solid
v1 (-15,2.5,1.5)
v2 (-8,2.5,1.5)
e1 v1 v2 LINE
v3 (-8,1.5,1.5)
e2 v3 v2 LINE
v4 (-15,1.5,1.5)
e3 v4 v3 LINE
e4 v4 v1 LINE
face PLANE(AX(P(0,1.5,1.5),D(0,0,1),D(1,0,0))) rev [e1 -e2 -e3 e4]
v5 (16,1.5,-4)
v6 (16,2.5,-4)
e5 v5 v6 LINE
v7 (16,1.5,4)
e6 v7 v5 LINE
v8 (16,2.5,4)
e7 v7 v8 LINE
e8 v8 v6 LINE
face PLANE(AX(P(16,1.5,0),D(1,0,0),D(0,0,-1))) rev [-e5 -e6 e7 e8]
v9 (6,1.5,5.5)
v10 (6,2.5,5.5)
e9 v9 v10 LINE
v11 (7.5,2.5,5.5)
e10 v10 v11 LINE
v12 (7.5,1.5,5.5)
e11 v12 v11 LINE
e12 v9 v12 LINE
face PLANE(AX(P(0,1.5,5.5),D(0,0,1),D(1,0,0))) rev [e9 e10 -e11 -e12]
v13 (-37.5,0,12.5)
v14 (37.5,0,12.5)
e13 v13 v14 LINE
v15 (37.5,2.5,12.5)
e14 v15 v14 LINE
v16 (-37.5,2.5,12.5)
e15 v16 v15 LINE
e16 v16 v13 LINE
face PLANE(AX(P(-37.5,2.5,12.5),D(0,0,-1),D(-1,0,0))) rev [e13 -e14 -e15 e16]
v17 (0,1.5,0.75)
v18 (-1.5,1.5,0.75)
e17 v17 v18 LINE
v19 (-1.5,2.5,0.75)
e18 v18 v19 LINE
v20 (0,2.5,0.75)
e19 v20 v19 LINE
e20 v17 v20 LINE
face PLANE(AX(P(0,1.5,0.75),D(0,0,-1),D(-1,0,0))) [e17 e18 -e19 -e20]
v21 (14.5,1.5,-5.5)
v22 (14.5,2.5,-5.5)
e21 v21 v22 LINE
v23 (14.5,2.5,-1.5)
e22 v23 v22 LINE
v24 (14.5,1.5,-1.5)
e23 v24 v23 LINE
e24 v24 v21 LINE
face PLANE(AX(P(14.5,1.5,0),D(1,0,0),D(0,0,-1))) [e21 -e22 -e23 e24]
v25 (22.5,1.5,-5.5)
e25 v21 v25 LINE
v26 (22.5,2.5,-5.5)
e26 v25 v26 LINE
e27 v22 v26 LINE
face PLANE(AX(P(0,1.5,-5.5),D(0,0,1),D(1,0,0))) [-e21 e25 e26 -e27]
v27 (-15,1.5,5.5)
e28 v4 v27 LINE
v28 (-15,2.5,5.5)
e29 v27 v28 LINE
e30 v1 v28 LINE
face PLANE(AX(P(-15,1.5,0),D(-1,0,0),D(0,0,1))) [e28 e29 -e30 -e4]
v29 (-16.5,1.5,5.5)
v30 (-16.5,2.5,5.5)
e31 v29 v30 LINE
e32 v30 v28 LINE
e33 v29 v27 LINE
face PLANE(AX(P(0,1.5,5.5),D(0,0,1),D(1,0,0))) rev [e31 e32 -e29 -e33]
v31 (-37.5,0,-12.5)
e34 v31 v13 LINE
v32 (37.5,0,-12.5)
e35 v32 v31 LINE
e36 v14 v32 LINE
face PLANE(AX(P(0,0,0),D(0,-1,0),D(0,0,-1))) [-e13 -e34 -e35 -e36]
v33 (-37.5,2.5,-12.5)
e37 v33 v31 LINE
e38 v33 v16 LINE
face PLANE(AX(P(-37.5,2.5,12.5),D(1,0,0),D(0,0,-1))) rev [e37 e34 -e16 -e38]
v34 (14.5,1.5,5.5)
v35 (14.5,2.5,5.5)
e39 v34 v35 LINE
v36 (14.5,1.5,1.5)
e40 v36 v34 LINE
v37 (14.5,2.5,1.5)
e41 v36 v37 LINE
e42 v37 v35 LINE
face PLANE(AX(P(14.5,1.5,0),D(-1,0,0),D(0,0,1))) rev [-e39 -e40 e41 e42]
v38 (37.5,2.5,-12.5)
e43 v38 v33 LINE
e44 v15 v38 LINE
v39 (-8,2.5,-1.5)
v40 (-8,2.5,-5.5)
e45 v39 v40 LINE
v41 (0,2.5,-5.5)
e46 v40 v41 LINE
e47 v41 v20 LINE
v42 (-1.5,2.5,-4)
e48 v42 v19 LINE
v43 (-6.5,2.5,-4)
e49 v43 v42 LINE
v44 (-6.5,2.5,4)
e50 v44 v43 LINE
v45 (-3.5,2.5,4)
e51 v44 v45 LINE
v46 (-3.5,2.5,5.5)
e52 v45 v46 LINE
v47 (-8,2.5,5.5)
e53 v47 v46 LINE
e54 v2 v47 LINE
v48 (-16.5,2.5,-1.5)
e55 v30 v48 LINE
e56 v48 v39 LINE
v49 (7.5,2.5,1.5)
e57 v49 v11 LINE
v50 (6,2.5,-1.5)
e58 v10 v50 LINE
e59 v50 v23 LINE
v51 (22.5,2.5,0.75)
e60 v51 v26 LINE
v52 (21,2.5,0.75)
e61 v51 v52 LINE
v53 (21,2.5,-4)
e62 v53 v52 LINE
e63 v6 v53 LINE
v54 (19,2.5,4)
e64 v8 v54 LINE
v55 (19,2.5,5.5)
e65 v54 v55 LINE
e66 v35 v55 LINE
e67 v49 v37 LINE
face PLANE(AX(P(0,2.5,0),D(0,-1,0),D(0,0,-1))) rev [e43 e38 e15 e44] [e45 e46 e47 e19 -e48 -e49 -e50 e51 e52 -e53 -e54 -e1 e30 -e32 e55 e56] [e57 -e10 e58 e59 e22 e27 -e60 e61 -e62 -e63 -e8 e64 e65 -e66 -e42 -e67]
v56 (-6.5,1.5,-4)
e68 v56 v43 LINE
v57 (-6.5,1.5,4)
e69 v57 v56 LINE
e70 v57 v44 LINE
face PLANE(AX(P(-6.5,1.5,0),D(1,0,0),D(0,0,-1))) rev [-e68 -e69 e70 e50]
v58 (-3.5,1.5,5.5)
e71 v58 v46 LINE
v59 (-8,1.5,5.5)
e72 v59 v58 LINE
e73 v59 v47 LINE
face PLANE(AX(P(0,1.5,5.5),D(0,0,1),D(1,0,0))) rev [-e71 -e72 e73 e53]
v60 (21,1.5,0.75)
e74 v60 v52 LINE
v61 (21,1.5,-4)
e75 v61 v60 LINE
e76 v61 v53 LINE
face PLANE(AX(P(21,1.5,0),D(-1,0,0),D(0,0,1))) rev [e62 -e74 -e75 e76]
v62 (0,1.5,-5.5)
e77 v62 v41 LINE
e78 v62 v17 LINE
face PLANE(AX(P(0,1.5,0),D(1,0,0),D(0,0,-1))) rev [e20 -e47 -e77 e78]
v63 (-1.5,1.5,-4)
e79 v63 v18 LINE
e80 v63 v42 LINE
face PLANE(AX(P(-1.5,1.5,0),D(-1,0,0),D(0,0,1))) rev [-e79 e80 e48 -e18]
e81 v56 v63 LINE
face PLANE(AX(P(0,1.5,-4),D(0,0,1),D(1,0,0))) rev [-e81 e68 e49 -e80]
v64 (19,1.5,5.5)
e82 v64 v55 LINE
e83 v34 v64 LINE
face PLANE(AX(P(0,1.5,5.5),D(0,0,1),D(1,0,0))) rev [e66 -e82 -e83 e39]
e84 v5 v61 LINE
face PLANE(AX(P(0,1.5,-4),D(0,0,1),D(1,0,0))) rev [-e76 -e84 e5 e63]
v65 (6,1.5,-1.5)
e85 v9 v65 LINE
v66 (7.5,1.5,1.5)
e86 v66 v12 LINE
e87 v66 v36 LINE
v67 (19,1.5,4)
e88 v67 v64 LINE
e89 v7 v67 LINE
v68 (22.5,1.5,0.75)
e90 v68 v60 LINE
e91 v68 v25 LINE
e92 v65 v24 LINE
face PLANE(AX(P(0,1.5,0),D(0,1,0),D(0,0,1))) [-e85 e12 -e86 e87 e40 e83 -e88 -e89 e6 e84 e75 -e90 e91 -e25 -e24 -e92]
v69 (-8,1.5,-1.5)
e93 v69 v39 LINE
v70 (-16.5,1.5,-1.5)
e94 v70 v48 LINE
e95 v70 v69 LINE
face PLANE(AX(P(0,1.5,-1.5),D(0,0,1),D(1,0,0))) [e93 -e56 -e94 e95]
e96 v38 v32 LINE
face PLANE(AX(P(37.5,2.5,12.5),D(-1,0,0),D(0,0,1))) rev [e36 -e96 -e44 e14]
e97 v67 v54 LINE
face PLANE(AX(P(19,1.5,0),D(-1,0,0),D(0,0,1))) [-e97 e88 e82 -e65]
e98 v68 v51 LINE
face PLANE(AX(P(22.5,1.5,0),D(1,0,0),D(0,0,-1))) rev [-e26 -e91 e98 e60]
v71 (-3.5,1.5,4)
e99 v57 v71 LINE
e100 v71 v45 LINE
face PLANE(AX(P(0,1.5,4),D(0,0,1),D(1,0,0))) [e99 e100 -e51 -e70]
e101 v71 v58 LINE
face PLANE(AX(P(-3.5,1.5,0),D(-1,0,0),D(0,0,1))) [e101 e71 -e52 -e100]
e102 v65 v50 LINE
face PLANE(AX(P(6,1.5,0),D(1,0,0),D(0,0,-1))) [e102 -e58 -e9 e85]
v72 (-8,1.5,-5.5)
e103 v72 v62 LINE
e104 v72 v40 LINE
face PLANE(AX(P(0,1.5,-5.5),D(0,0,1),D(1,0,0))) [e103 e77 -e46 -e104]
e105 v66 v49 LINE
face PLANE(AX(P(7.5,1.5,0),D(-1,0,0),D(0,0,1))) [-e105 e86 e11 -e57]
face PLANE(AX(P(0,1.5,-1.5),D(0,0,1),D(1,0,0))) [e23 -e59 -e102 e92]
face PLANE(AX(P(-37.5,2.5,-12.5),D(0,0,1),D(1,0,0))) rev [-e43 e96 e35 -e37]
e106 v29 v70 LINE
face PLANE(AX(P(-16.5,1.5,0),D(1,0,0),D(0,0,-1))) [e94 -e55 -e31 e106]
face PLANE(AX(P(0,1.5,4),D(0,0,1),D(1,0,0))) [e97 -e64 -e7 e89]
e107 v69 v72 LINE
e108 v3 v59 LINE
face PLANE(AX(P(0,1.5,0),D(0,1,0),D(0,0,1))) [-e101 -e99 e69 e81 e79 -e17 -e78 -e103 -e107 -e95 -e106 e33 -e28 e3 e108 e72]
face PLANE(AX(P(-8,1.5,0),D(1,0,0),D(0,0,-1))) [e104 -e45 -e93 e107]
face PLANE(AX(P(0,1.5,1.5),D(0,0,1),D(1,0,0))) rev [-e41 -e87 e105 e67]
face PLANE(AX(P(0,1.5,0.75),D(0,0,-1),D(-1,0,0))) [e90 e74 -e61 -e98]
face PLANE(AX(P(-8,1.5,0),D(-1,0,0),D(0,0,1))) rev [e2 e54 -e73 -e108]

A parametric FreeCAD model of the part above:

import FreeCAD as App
import Part
import Sketcher

doc = App.newDocument("Part")
body = doc.addObject("PartDesign::Body", "Body")

# Sketch on XZ plane
sketch1 = body.newObject("Sketcher::SketchObject", "Sketch")
sketch1.AttachmentSupport = (doc.getObject("XZ_Plane"), [""])
sketch1.MapMode = "FlatFace"
sketch1.addGeometry(Part.LineSegment(App.Vector(-37.5, -12.5, 0), App.Vector(-37.5, 12.5, 0)), False)
sketch1.addGeometry(Part.LineSegment(App.Vector(-37.5, 12.5, 0), App.Vector(37.5, 12.5, 0)), False)
sketch1.addGeometry(Part.LineSegment(App.Vector(37.5, 12.5, 0), App.Vector(37.5, -12.5, 0)), False)
sketch1.addGeometry(Part.LineSegment(App.Vector(37.5, -12.5, 0), App.Vector(-37.5, -12.5, 0)), False)
sketch1.addConstraint(Sketcher.Constraint("Coincident", 0, 2, 1, 1))
sketch1.addConstraint(Sketcher.Constraint("Coincident", 1, 2, 2, 1))
sketch1.addConstraint(Sketcher.Constraint("Coincident", 2, 2, 3, 1))
sketch1.addConstraint(Sketcher.Constraint("Coincident", 3, 2, 0, 1))
sketch1.addConstraint(Sketcher.Constraint("Vertical", 0))
sketch1.addConstraint(Sketcher.Constraint("Horizontal", 1))
sketch1.addConstraint(Sketcher.Constraint("Vertical", 2))
sketch1.addConstraint(Sketcher.Constraint("Horizontal", 3))
sketch1.addConstraint(Sketcher.Constraint("Symmetric", 0, 2, 2, 2, -1, 1))
sketch1.addConstraint(Sketcher.Constraint("DistanceX", 1, 1, 1, 2, 75.0))
sketch1.addConstraint(Sketcher.Constraint("DistanceY", 0, 1, 0, 2, 25.0))
pad1 = body.newObject("PartDesign::Pad", "Pad")
pad1.Profile = sketch1
pad1.Length = 2.5
pad1.Reversed = True

# Sketch on XZ plane
sketch2 = body.newObject("Sketcher::SketchObject", "Sketch001")
sketch2.AttachmentSupport = (doc.getObject("XZ_Plane"), [""])
sketch2.MapMode = "FlatFace"
sketch2.AttachmentOffset = App.Placement(App.Vector(0, 0, -2.5), App.Rotation())
sketch2.addGeometry(Part.LineSegment(App.Vector(6, -1.5, 0), App.Vector(6, 5.5, 0)), False)
sketch2.addGeometry(Part.LineSegment(App.Vector(6, 5.5, 0), App.Vector(7.5, 5.5, 0)), False)
sketch2.addGeometry(Part.LineSegment(App.Vector(7.5, 5.5, 0), App.Vector(7.5, 1.5, 0)), False)
sketch2.addGeometry(Part.LineSegment(App.Vector(7.5, 1.5, 0), App.Vector(14.5, 1.5, 0)), False)
sketch2.addGeometry(Part.LineSegment(App.Vector(14.5, 1.5, 0), App.Vector(14.5, 5.5, 0)), False)
sketch2.addGeometry(Part.LineSegment(App.Vector(14.5, 5.5, 0), App.Vector(19, 5.5, 0)), False)
sketch2.addGeometry(Part.LineSegment(App.Vector(19, 5.5, 0), App.Vector(19, 4, 0)), False)
sketch2.addGeometry(Part.LineSegment(App.Vector(19, 4, 0), App.Vector(16, 4, 0)), False)
sketch2.addGeometry(Part.LineSegment(App.Vector(16, 4, 0), App.Vector(16, -4, 0)), False)
sketch2.addGeometry(Part.LineSegment(App.Vector(16, -4, 0), App.Vector(21, -4, 0)), False)
sketch2.addGeometry(Part.LineSegment(App.Vector(21, -4, 0), App.Vector(21, 0.75, 0)), False)
sketch2.addGeometry(Part.LineSegment(App.Vector(21, 0.75, 0), App.Vector(22.5, 0.75, 0)), False)
sketch2.addGeometry(Part.LineSegment(App.Vector(22.5, 0.75, 0), App.Vector(22.5, -5.5, 0)), False)
sketch2.addGeometry(Part.LineSegment(App.Vector(22.5, -5.5, 0), App.Vector(14.5, -5.5, 0)), False)
sketch2.addGeometry(Part.LineSegment(App.Vector(14.5, -5.5, 0), App.Vector(14.5, -1.5, 0)), False)
sketch2.addGeometry(Part.LineSegment(App.Vector(14.5, -1.5, 0), App.Vector(6, -1.5, 0)), False)
sketch2.addGeometry(Part.LineSegment(App.Vector(-16.5, -1.5, 0), App.Vector(-16.5, 5.5, 0)), False)
sketch2.addGeometry(Part.LineSegment(App.Vector(-16.5, 5.5, 0), App.Vector(-15, 5.5, 0)), False)
sketch2.addGeometry(Part.LineSegment(App.Vector(-15, 5.5, 0), App.Vector(-15, 1.5, 0)), False)
sketch2.addGeometry(Part.LineSegment(App.Vector(-15, 1.5, 0), App.Vector(-8, 1.5, 0)), False)
sketch2.addGeometry(Part.LineSegment(App.Vector(-8, 1.5, 0), App.Vector(-8, 5.5, 0)), False)
sketch2.addGeometry(Part.LineSegment(App.Vector(-8, 5.5, 0), App.Vector(-3.5, 5.5, 0)), False)
sketch2.addGeometry(Part.LineSegment(App.Vector(-3.5, 5.5, 0), App.Vector(-3.5, 4, 0)), False)
sketch2.addGeometry(Part.LineSegment(App.Vector(-3.5, 4, 0), App.Vector(-6.5, 4, 0)), False)
sketch2.addGeometry(Part.LineSegment(App.Vector(-6.5, 4, 0), App.Vector(-6.5, -4, 0)), False)
sketch2.addGeometry(Part.LineSegment(App.Vector(-6.5, -4, 0), App.Vector(-1.5, -4, 0)), False)
sketch2.addGeometry(Part.LineSegment(App.Vector(-1.5, -4, 0), App.Vector(-1.5, 0.75, 0)), False)
sketch2.addGeometry(Part.LineSegment(App.Vector(-1.5, 0.75, 0), App.Vector(0, 0.75, 0)), False)
sketch2.addGeometry(Part.LineSegment(App.Vector(0, 0.75, 0), App.Vector(0, -5.5, 0)), False)
sketch2.addGeometry(Part.LineSegment(App.Vector(0, -5.5, 0), App.Vector(-8, -5.5, 0)), False)
sketch2.addGeometry(Part.LineSegment(App.Vector(-8, -5.5, 0), App.Vector(-8, -1.5, 0)), False)
sketch2.addGeometry(Part.LineSegment(App.Vector(-8, -1.5, 0), App.Vector(-16.5, -1.5, 0)), False)
sketch2.addConstraint(Sketcher.Constraint("Coincident", 0, 2, 1, 1))
sketch2.addConstraint(Sketcher.Constraint("Coincident", 1, 2, 2, 1))
sketch2.addConstraint(Sketcher.Constraint("Coincident", 2, 2, 3, 1))
sketch2.addConstraint(Sketcher.Constraint("Coincident", 3, 2, 4, 1))
sketch2.addConstraint(Sketcher.Constraint("Coincident", 4, 2, 5, 1))
sketch2.addConstraint(Sketcher.Constraint("Coincident", 5, 2, 6, 1))
sketch2.addConstraint(Sketcher.Constraint("Coincident", 6, 2, 7, 1))
sketch2.addConstraint(Sketcher.Constraint("Coincident", 7, 2, 8, 1))
sketch2.addConstraint(Sketcher.Constraint("Coincident", 8, 2, 9, 1))
sketch2.addConstraint(Sketcher.Constraint("Coincident", 9, 2, 10, 1))
sketch2.addConstraint(Sketcher.Constraint("Coincident", 10, 2, 11, 1))
sketch2.addConstraint(Sketcher.Constraint("Coincident", 11, 2, 12, 1))
sketch2.addConstraint(Sketcher.Constraint("Coincident", 12, 2, 13, 1))
sketch2.addConstraint(Sketcher.Constraint("Coincident", 13, 2, 14, 1))
sketch2.addConstraint(Sketcher.Constraint("Coincident", 14, 2, 15, 1))
sketch2.addConstraint(Sketcher.Constraint("Coincident", 15, 2, 0, 1))
sketch2.addConstraint(Sketcher.Constraint("Coincident", 16, 2, 17, 1))
sketch2.addConstraint(Sketcher.Constraint("Coincident", 17, 2, 18, 1))
sketch2.addConstraint(Sketcher.Constraint("Coincident", 18, 2, 19, 1))
sketch2.addConstraint(Sketcher.Constraint("Coincident", 19, 2, 20, 1))
sketch2.addConstraint(Sketcher.Constraint("Coincident", 20, 2, 21, 1))
sketch2.addConstraint(Sketcher.Constraint("Coincident", 21, 2, 22, 1))
sketch2.addConstraint(Sketcher.Constraint("Coincident", 22, 2, 23, 1))
sketch2.addConstraint(Sketcher.Constraint("Coincident", 23, 2, 24, 1))
sketch2.addConstraint(Sketcher.Constraint("Coincident", 24, 2, 25, 1))
sketch2.addConstraint(Sketcher.Constraint("Coincident", 25, 2, 26, 1))
sketch2.addConstraint(Sketcher.Constraint("Coincident", 26, 2, 27, 1))
sketch2.addConstraint(Sketcher.Constraint("Coincident", 27, 2, 28, 1))
sketch2.addConstraint(Sketcher.Constraint("Coincident", 28, 2, 29, 1))
sketch2.addConstraint(Sketcher.Constraint("Coincident", 29, 2, 30, 1))
sketch2.addConstraint(Sketcher.Constraint("Coincident", 30, 2, 31, 1))
sketch2.addConstraint(Sketcher.Constraint("Coincident", 31, 2, 16, 1))
sketch2.addConstraint(Sketcher.Constraint("Vertical", 0))
sketch2.addConstraint(Sketcher.Constraint("Horizontal", 1))
sketch2.addConstraint(Sketcher.Constraint("Vertical", 2))
sketch2.addConstraint(Sketcher.Constraint("Horizontal", 3))
sketch2.addConstraint(Sketcher.Constraint("Vertical", 4))
sketch2.addConstraint(Sketcher.Constraint("Horizontal", 5))
sketch2.addConstraint(Sketcher.Constraint("Vertical", 6))
sketch2.addConstraint(Sketcher.Constraint("Horizontal", 7))
sketch2.addConstraint(Sketcher.Constraint("Vertical", 8))
sketch2.addConstraint(Sketcher.Constraint("Horizontal", 9))
sketch2.addConstraint(Sketcher.Constraint("Vertical", 10))
sketch2.addConstraint(Sketcher.Constraint("Horizontal", 11))
sketch2.addConstraint(Sketcher.Constraint("Vertical", 12))
sketch2.addConstraint(Sketcher.Constraint("Horizontal", 13))
sketch2.addConstraint(Sketcher.Constraint("Vertical", 14))
sketch2.addConstraint(Sketcher.Constraint("Horizontal", 15))
sketch2.addConstraint(Sketcher.Constraint("Vertical", 16))
sketch2.addConstraint(Sketcher.Constraint("Horizontal", 17))
sketch2.addConstraint(Sketcher.Constraint("Vertical", 18))
sketch2.addConstraint(Sketcher.Constraint("Horizontal", 19))
sketch2.addConstraint(Sketcher.Constraint("Vertical", 20))
sketch2.addConstraint(Sketcher.Constraint("Horizontal", 21))
sketch2.addConstraint(Sketcher.Constraint("Vertical", 22))
sketch2.addConstraint(Sketcher.Constraint("Horizontal", 23))
sketch2.addConstraint(Sketcher.Constraint("Vertical", 24))
sketch2.addConstraint(Sketcher.Constraint("Horizontal", 25))
sketch2.addConstraint(Sketcher.Constraint("Vertical", 26))
sketch2.addConstraint(Sketcher.Constraint("Horizontal", 27))
sketch2.addConstraint(Sketcher.Constraint("Vertical", 28))
sketch2.addConstraint(Sketcher.Constraint("Horizontal", 29))
sketch2.addConstraint(Sketcher.Constraint("Vertical", 30))
sketch2.addConstraint(Sketcher.Constraint("Horizontal", 31))
sketch2.addConstraint(Sketcher.Constraint("Symmetric", 4, 2, 13, 2, -1))
sketch2.addConstraint(Sketcher.Constraint("Symmetric", 20, 2, 29, 2, -1))
sketch2.addConstraint(Sketcher.Constraint("PointOnObject", 27, 2, -2))
sketch2.addConstraint(Sketcher.Constraint("Horizontal", 1, 2, 4, 2))
sketch2.addConstraint(Sketcher.Constraint("Horizontal", 5, 2, 16, 2))
sketch2.addConstraint(Sketcher.Constraint("Horizontal", 3, 2, 18, 2))
sketch2.addConstraint(Sketcher.Constraint("Horizontal", 17, 2, 20, 2))
sketch2.addConstraint(Sketcher.Constraint("Horizontal", 7, 2, 22, 2))
sketch2.addConstraint(Sketcher.Constraint("Horizontal", 9, 2, 24, 2))
sketch2.addConstraint(Sketcher.Constraint("Horizontal", 11, 2, 26, 2))
sketch2.addConstraint(Sketcher.Constraint("Horizontal", 15, 2, 30, 2))
sketch2.addConstraint(Sketcher.Constraint("Equal", 1, 11))
sketch2.addConstraint(Sketcher.Constraint("Equal", 11, 17))
sketch2.addConstraint(Sketcher.Constraint("Equal", 3, 19))
sketch2.addConstraint(Sketcher.Constraint("Equal", 5, 21))
sketch2.addConstraint(Sketcher.Constraint("Equal", 7, 23))
sketch2.addConstraint(Sketcher.Constraint("Equal", 9, 25))
sketch2.addConstraint(Sketcher.Constraint("Equal", 17, 27))
sketch2.addConstraint(Sketcher.Constraint("Equal", 19, 0))
sketch2.addConstraint(Sketcher.Constraint("Equal", 27, 6))
sketch2.addConstraint(Sketcher.Constraint("Equal", 29, 8))
sketch2.addConstraint(Sketcher.Constraint("Equal", 4, 14))
sketch2.addConstraint(Sketcher.Constraint("DistanceX", 3, 1, 3, 2, 7.0))
sketch2.addConstraint(Sketcher.Constraint("DistanceX", 7, 2, 7, 1, 3.0))
sketch2.addConstraint(Sketcher.Constraint("DistanceX", 9, 1, 9, 2, 5.0))
sketch2.addConstraint(Sketcher.Constraint("DistanceX", 13, 2, 13, 1, 8.0))
sketch2.addConstraint(Sketcher.Constraint("DistanceY", 2, 2, 2, 1, 4.0))
sketch2.addConstraint(Sketcher.Constraint("DistanceX", 1, 1, 1, 2, 1.5))
sketch2.addConstraint(Sketcher.Constraint("DistanceX", -1, 1, 0, 2, 6.0))
sketch2.addConstraint(Sketcher.Constraint("DistanceY", 10, 1, 10, 2, 4.75))
pocket1 = body.newObject("PartDesign::Pocket", "Pocket")
pocket1.Profile = sketch2
pocket1.Length = 1
pocket1.Reversed = True

doc.recompute()
